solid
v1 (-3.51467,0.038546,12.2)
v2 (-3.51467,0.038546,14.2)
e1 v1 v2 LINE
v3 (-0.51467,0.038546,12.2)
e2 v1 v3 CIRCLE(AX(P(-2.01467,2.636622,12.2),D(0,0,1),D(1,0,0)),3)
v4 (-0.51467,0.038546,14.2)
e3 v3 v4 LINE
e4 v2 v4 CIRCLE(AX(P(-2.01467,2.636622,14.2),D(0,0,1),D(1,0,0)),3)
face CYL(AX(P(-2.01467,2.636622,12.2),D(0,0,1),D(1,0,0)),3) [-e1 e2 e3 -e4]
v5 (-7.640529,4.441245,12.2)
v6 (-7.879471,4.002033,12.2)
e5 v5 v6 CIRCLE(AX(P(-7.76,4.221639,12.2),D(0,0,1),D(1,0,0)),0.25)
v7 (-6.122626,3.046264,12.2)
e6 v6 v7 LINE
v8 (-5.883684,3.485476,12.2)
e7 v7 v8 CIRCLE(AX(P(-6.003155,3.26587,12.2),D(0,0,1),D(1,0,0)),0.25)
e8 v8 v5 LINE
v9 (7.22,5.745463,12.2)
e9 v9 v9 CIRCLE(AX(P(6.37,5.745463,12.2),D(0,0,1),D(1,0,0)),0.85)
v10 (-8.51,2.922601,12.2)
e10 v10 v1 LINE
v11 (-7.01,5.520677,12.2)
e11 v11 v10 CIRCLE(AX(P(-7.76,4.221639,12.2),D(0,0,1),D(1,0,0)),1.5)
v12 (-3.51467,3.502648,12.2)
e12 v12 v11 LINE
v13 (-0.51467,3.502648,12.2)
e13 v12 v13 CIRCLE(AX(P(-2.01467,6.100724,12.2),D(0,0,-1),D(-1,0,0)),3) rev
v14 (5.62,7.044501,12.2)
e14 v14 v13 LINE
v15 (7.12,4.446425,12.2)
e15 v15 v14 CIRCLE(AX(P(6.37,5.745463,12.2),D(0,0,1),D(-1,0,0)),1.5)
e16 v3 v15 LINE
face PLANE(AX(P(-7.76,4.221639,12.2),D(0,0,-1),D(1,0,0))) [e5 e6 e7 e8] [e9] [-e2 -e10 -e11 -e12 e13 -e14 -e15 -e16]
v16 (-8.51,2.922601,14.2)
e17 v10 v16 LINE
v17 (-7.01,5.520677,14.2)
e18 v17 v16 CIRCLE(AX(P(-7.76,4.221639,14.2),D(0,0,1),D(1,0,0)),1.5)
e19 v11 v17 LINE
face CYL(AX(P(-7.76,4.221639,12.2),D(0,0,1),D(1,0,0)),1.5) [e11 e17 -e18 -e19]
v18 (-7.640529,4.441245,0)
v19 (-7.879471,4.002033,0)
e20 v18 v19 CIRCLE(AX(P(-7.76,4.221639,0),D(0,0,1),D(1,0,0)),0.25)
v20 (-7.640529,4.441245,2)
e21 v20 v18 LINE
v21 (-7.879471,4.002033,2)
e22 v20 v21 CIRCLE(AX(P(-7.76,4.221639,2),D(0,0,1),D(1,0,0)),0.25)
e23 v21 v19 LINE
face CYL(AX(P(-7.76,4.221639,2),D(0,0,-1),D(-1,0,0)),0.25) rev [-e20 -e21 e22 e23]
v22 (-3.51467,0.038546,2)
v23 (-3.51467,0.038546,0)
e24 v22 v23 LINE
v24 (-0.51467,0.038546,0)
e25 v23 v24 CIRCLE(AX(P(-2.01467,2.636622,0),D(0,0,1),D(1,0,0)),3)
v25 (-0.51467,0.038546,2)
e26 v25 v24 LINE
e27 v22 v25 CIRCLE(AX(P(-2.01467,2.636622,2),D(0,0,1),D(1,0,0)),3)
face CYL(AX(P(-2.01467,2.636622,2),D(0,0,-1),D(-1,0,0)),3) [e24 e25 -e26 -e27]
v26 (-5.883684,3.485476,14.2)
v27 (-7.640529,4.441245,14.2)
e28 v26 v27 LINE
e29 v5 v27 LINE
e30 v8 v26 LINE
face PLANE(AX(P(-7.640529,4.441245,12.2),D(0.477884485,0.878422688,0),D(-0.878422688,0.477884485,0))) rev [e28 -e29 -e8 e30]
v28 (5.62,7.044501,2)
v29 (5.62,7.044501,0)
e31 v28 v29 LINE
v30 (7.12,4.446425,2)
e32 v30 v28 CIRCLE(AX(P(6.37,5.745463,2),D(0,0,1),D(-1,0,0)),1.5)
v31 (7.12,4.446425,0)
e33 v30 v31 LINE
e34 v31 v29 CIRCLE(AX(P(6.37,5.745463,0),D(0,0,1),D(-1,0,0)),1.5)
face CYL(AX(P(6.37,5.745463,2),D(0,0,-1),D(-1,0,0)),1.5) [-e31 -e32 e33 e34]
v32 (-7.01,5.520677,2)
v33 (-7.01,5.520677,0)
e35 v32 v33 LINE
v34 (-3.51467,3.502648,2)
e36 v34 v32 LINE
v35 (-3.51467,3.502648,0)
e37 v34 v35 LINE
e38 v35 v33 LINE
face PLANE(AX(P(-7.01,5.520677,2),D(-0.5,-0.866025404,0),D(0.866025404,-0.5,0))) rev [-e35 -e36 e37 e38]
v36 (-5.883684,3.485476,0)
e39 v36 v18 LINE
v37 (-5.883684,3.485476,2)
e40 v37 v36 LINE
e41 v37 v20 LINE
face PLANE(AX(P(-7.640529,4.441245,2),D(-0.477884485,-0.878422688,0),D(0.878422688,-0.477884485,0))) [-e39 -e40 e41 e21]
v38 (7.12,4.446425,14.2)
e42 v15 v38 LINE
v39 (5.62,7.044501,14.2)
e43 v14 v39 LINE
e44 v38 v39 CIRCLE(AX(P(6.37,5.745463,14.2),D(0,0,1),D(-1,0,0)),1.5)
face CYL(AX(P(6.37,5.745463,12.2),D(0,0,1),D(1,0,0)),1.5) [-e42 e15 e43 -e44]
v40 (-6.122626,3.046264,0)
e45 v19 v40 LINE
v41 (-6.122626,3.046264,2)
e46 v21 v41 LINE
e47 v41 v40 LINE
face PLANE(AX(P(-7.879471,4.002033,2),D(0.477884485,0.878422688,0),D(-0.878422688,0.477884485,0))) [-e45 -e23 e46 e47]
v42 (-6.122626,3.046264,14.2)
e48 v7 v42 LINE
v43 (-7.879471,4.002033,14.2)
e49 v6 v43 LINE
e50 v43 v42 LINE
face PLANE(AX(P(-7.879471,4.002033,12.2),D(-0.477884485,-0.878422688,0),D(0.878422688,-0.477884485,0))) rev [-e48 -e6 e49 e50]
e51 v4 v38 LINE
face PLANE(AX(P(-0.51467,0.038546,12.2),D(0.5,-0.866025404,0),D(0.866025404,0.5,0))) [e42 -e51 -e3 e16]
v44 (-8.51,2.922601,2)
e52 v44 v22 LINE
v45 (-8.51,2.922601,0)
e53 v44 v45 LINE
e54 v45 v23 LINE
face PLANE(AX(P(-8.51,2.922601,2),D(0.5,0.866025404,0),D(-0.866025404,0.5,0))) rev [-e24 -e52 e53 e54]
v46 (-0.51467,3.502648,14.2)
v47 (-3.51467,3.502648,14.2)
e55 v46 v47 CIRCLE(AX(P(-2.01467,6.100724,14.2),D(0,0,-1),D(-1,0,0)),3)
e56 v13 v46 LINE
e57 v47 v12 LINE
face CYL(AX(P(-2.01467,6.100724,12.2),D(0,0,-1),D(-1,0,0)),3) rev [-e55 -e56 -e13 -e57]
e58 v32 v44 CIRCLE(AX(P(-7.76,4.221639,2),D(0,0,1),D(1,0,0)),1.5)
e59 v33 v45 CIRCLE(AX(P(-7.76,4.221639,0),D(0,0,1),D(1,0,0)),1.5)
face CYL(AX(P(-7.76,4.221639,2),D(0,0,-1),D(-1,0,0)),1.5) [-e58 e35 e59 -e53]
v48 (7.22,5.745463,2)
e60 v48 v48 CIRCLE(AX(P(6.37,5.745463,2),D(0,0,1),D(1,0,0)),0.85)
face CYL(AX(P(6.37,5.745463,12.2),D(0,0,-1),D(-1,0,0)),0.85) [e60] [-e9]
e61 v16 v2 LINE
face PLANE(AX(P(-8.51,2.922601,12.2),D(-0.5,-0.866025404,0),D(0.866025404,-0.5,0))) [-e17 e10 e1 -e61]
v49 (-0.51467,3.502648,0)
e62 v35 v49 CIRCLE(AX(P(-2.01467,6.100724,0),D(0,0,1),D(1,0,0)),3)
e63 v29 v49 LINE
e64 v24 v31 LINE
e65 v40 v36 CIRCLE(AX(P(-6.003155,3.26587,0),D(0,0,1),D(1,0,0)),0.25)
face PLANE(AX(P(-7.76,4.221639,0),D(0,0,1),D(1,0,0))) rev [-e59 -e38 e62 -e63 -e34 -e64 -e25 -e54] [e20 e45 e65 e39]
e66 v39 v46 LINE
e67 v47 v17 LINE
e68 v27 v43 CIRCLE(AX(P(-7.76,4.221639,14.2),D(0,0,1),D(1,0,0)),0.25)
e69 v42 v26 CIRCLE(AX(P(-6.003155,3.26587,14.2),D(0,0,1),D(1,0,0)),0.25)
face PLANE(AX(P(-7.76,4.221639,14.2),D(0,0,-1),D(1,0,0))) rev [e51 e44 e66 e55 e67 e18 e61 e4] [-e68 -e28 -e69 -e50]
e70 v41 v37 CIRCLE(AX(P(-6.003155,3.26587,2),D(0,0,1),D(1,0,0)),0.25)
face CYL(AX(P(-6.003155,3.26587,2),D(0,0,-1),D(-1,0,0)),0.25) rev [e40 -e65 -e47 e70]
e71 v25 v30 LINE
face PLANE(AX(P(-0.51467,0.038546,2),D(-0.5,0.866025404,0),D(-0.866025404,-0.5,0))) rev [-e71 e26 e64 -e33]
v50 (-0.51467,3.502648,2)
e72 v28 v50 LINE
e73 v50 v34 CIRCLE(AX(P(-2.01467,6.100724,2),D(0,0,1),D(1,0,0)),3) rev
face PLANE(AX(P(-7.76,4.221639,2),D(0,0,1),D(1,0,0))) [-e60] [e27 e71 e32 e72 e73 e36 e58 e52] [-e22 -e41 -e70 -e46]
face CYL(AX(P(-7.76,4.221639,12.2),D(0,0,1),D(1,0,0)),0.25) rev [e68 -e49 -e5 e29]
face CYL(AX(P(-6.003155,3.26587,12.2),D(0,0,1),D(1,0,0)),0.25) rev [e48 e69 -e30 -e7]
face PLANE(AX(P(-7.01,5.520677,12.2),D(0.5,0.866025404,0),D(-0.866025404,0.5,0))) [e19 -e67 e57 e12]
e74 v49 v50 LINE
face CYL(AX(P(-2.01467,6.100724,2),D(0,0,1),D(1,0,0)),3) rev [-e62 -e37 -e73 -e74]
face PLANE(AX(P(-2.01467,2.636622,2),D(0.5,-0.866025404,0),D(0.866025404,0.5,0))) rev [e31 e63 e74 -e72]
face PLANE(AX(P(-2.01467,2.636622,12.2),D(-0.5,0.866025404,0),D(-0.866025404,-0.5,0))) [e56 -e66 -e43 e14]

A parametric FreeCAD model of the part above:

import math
import FreeCAD as App
import Part
import Sketcher
from FreeCAD import Vector
Q = App.Units.Quantity


def edges_at(feature, points):
    """Names of the edges that pass closest to the given points."""
    edges = feature.Shape.Edges
    near = lambda p: min(range(len(edges)), key=lambda i: edges[i].distToShape(Part.Vertex(*p))[0])
    return sorted({f"Edge{near(p) + 1}" for p in points})

doc = App.newDocument("Part")
params = doc.addObject("Spreadsheet::Sheet", "Params")
for row, (alias, value) in enumerate([
    ("sketch1_radius", "3 mm"),
    ("sketch1_radius2", "0.25 mm"),
    ("sketch1_length", "2 mm"),
    ("pad1_length", "2 mm"),
    ("sketch2_diameter", "1.7 mm"),
    ("pad2_length", "10.2 mm"),
    ("fillet_radius", "3 mm"),
], start=1):
    params.set(f"A{row}", alias)
    params.set(f"B{row}", "=" + value)
    params.setAlias(f"B{row}", alias)

body = doc.addObject("PartDesign::Body", "Body")

sketch1 = body.newObject("Sketcher::SketchObject", "Sketch")
sketch1.AttachmentSupport = (doc.getObject("XY_Plane"), [""])
sketch1.MapMode = "FlatFace"
sketch1.addGeometry([
    Part.LineSegment(Vector(-2.01, 2.64, 0), Vector(-7.01, 5.52, 0)),
    Part.ArcOfCircle(Part.Circle(Vector(-7.76, 4.22, 0), Vector(0, 0, 1), 1.5), math.radians(60), math.radians(240)),
    Part.LineSegment(Vector(-8.51, 2.92, 0), Vector(-3.51, 0.04, 0)),
    Part.ArcOfCircle(Part.Circle(Vector(-2.01, 2.64, 0), Vector(0, 0, 1), 3), math.radians(-120), math.radians(-60)),
    Part.LineSegment(Vector(-0.51, 0.04, 0), Vector(7.12, 4.45, 0)),
    Part.ArcOfCircle(Part.Circle(Vector(6.37, 5.75, 0), Vector(0, 0, 1), 1.5), math.radians(-60), math.radians(120)),
    Part.LineSegment(Vector(5.62, 7.04, 0), Vector(-2.01, 2.64, 0)),
    Part.LineSegment(Vector(-7.64, 4.44, 0), Vector(-5.88, 3.49, 0)),
    Part.ArcOfCircle(Part.Circle(Vector(-6, 3.27, 0), Vector(0, 0, 1), 0.25), math.radians(-119), math.radians(61)),
    Part.LineSegment(Vector(-6.12, 3.05, 0), Vector(-7.88, 4, 0)),
    Part.ArcOfCircle(Part.Circle(Vector(-7.76, 4.22, 0), Vector(0, 0, 1), 0.25), math.radians(61), math.radians(241)),
], False)
sketch1.addConstraint([
    Sketcher.Constraint("Tangent", 0, 2, 1, 1),
    Sketcher.Constraint("Tangent", 1, 2, 2, 1),
    Sketcher.Constraint("Tangent", 2, 2, 3, 1),
    Sketcher.Constraint("Tangent", 3, 2, 4, 1),
    Sketcher.Constraint("Tangent", 4, 2, 5, 1),
    Sketcher.Constraint("Tangent", 5, 2, 6, 1),
    Sketcher.Constraint("Coincident", 6, 2, 0, 1),
    Sketcher.Constraint("Tangent", 7, 2, 8, 2),
    Sketcher.Constraint("Tangent", 8, 1, 9, 1),
    Sketcher.Constraint("Tangent", 9, 2, 10, 2),
    Sketcher.Constraint("Tangent", 10, 1, 7, 1),
    Sketcher.Constraint("Coincident", 10, 3, 1, 3),
    Sketcher.Constraint("Coincident", 6, 2, 3, 3),
    Sketcher.Constraint("Equal", 1, 5),
    Sketcher.Constraint("Equal", 8, 10),
    Sketcher.Constraint("Parallel", 0, 2),
    Sketcher.Constraint("Horizontal", 2, 2, 3, 2),
    Sketcher.Constraint("Radius", 3, Q("3 mm")),
    Sketcher.Constraint("Angle", 0, Q("150 deg")),
    Sketcher.Constraint("Radius", 8, Q("0.25 mm")),
    Sketcher.Constraint("Distance", 7, Q("2 mm")),
    Sketcher.Constraint("DistanceX", 1, 3, -1, 1, Q("7.76 mm")),
    Sketcher.Constraint("DistanceX", -1, 1, 5, 3, Q("6.37 mm")),
    Sketcher.Constraint("DistanceY", -1, 1, 1, 2, Q("2.922601 mm")),
    Sketcher.Constraint("DistanceY", -1, 1, 5, 2, Q("7.044501 mm")),
    Sketcher.Constraint("DistanceY", 7, 2, 0, 2, Q("2.035201 mm")),
])
sketch1.setExpression("Constraints[17]", "Params.sketch1_radius")
sketch1.setExpression("Constraints[19]", "Params.sketch1_radius2")
sketch1.setExpression("Constraints[20]", "Params.sketch1_length")
pad1 = body.newObject("PartDesign::Pad", "Pad")
pad1.Profile = sketch1
pad1.setExpression("Length", "Params.pad1_length")

sketch2 = body.newObject("Sketcher::SketchObject", "Sketch001")
sketch2.AttachmentSupport = (doc.getObject("XY_Plane"), [""])
sketch2.MapMode = "FlatFace"
sketch2.AttachmentOffset = App.Placement(Vector(0, 0, 2), App.Rotation())
sketch2.addGeometry(Part.Circle(Vector(6.4, 5.7, 0), Vector(0, 0, 1), 0.8), False)
sketch2.addConstraint([
    Sketcher.Constraint("Diameter", 0, Q("1.7 mm")),
    Sketcher.Constraint("DistanceX", -1, 1, 0, 3, Q("6.37 mm")),
    Sketcher.Constraint("DistanceY", -1, 1, 0, 3, Q("5.745463 mm")),
])
sketch2.setExpression("Constraints[0]", "Params.sketch2_diameter")
pad2 = body.newObject("PartDesign::Pad", "Pad001")
pad2.Profile = sketch2
pad2.setExpression("Length", "Params.pad2_length")
doc.recompute()

datumplane = body.newObject("PartDesign::Plane", "DatumPlane")
datumplane.AttachmentSupport = (doc.getObject("XY_Plane"), [""])
datumplane.MapMode = "FlatFace"
datumplane.AttachmentOffset = App.Placement(Vector(0, 0, 7.1), App.Rotation())
mirrored = body.newObject("PartDesign::Mirrored", "Mirrored")
mirrored.Originals = [pad1]
mirrored.MirrorPlane = (datumplane, [""])
body.Tip = mirrored
doc.recompute()

fillet = body.newObject("PartDesign::Fillet", "Fillet")
fillet.Base = (mirrored, edges_at(mirrored, [(-2.015, 2.637, 1), (-2.015, 2.637, 13.2)]))
fillet.setExpression("Radius", "Params.fillet_radius")

doc.recompute()
